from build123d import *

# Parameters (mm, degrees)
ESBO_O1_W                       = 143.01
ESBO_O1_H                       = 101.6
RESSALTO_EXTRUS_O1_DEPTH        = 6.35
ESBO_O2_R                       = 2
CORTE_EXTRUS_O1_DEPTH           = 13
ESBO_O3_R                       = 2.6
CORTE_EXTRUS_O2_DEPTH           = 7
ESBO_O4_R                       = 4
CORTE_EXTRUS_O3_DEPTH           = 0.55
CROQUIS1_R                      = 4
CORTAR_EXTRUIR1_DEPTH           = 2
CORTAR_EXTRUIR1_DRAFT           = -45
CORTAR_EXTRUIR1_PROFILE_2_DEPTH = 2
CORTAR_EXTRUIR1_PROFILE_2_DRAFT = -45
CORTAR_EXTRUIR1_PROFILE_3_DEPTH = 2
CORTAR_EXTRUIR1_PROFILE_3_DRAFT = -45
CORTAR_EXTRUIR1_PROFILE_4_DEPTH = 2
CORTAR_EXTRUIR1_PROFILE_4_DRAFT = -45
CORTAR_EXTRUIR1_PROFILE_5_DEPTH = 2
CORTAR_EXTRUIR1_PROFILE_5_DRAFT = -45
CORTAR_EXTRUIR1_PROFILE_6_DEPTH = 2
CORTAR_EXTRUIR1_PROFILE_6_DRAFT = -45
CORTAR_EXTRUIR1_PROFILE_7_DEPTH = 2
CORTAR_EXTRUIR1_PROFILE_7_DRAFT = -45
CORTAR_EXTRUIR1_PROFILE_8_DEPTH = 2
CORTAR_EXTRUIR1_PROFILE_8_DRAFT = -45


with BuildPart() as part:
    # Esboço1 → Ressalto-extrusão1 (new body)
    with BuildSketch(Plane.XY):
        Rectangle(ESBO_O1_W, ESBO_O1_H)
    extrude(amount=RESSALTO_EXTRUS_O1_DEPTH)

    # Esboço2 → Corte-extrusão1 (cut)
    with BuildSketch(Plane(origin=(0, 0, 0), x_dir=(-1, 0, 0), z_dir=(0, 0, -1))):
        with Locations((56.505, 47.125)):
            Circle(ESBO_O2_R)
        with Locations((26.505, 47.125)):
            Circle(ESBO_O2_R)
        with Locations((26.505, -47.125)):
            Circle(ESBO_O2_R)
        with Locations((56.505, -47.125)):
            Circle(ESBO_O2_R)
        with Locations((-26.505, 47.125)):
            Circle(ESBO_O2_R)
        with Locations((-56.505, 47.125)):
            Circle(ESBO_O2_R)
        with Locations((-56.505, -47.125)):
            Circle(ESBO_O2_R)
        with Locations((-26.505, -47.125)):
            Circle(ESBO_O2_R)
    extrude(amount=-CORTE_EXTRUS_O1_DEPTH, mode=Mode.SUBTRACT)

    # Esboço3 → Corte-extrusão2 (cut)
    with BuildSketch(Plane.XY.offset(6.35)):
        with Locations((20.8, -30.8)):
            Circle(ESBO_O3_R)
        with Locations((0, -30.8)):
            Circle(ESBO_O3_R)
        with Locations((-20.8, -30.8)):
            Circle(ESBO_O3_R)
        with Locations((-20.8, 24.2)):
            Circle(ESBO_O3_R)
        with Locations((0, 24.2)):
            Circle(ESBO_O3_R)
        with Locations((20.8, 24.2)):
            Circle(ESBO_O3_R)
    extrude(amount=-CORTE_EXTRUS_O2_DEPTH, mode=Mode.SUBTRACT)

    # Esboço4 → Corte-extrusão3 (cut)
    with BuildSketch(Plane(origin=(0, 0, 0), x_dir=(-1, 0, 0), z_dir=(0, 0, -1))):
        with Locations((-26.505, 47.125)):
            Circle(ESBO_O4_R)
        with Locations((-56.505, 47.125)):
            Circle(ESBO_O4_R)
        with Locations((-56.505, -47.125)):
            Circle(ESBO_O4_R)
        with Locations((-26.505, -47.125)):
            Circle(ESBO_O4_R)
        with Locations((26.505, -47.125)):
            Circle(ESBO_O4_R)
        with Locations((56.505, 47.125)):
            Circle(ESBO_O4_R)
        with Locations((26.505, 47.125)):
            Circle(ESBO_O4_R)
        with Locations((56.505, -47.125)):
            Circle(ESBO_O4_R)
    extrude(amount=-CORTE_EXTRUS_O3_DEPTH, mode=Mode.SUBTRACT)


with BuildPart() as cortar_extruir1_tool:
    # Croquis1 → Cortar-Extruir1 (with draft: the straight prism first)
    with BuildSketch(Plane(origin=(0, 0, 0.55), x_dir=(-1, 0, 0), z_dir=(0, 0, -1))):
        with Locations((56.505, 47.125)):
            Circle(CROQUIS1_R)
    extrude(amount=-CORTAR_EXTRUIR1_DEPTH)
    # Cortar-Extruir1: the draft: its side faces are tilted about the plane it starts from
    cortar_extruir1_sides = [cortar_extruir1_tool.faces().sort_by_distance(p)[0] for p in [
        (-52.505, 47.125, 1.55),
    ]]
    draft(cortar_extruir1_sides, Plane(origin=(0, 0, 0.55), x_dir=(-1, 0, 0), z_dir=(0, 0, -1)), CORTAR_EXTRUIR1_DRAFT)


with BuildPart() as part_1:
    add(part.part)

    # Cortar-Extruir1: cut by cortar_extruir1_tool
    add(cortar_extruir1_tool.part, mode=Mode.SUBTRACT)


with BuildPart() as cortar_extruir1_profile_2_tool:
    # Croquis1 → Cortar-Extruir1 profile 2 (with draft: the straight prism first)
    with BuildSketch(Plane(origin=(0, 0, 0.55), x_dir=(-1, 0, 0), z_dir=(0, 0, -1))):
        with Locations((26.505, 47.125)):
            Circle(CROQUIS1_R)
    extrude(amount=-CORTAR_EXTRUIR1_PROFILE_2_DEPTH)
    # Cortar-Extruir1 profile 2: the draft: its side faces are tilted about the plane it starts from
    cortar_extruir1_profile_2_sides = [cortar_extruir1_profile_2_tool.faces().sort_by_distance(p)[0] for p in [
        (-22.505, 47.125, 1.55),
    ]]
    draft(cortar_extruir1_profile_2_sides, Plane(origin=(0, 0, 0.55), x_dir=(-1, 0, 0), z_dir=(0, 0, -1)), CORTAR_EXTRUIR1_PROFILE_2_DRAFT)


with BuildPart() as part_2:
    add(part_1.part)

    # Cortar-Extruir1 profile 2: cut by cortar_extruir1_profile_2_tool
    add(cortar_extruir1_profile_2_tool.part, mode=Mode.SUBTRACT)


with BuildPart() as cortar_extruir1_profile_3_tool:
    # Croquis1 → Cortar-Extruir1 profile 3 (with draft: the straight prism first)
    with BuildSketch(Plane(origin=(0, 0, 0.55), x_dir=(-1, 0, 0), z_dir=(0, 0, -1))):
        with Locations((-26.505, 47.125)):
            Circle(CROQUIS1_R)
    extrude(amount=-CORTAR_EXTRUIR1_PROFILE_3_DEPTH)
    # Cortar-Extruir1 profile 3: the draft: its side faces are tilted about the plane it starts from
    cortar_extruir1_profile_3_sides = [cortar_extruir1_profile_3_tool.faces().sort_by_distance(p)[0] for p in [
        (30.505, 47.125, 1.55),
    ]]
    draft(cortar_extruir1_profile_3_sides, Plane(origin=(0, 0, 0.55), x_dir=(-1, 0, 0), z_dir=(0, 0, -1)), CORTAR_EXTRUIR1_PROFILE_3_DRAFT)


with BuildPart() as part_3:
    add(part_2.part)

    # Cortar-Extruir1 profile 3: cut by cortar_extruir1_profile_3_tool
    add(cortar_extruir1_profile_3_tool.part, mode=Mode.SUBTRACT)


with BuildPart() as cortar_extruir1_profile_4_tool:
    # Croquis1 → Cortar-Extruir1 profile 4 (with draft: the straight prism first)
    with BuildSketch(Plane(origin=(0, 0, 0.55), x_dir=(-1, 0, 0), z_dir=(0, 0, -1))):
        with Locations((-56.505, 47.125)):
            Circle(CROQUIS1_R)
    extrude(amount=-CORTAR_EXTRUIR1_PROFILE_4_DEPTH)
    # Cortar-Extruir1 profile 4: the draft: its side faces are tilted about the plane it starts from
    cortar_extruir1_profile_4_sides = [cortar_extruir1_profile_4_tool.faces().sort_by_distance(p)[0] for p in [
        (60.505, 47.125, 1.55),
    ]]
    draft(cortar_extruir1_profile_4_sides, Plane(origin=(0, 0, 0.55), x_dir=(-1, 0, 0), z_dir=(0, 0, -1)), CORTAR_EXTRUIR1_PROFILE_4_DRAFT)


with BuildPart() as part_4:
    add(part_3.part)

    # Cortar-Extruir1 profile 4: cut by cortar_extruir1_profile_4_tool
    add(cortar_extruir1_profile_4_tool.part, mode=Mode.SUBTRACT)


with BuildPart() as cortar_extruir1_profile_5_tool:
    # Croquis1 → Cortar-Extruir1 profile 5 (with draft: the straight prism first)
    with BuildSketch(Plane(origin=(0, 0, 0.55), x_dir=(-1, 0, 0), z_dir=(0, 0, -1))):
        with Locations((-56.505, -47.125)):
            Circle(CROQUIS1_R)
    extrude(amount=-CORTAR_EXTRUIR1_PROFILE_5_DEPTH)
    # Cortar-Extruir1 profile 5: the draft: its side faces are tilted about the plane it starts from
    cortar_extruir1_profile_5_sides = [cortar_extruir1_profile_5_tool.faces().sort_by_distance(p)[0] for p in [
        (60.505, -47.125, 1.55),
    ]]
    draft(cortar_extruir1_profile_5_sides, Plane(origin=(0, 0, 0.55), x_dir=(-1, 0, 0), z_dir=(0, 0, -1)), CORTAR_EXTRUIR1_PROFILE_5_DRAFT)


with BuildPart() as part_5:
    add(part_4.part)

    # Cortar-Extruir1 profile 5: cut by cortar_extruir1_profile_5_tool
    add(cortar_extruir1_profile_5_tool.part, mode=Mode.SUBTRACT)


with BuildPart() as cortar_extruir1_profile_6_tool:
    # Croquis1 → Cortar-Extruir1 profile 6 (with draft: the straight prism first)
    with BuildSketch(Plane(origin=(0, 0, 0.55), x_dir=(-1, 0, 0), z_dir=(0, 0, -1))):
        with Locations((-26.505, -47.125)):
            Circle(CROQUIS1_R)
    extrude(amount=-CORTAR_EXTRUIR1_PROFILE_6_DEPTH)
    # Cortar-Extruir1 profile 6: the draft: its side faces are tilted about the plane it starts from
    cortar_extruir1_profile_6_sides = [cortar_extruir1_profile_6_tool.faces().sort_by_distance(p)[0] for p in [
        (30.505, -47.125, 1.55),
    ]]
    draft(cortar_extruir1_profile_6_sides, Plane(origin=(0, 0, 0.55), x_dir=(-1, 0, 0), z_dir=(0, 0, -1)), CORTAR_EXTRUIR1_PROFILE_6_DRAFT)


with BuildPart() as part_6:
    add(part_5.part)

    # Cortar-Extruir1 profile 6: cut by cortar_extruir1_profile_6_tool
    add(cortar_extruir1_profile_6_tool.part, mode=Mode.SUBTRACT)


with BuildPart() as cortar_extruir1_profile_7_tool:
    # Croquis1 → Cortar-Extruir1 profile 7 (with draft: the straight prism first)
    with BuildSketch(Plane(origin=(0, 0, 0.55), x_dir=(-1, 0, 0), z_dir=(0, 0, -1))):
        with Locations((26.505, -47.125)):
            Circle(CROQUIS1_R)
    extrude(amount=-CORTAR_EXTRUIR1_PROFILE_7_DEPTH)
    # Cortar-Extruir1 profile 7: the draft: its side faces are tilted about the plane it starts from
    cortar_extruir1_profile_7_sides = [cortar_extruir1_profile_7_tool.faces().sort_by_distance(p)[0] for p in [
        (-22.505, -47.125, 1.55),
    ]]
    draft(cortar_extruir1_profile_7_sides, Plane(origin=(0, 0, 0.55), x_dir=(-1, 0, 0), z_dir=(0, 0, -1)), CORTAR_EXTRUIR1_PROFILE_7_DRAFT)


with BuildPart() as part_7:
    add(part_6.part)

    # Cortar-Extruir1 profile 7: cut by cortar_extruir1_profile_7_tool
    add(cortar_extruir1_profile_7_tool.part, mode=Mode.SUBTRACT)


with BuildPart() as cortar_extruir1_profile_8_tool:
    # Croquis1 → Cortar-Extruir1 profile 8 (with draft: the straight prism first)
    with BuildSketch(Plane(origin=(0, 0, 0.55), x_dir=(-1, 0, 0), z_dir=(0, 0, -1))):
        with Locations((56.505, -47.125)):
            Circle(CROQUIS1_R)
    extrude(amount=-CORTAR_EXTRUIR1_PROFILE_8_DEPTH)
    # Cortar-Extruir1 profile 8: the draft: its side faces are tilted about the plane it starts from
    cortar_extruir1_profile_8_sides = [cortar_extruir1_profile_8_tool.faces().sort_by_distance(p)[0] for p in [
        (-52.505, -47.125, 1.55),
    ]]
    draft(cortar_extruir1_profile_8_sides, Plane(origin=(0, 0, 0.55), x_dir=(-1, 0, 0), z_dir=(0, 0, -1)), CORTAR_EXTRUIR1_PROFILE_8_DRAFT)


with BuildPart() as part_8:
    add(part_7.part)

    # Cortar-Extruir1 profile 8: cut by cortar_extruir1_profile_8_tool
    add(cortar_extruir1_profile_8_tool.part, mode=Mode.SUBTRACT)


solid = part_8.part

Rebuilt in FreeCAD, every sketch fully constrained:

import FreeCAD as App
import Part
import Sketcher

V = App.Vector


def faces_at(feature, points):
    """Names of the faces that lie closest to the given points."""
    faces = feature.Shape.Faces
    near = lambda p: min(range(len(faces)), key=lambda i: faces[i].distToShape(Part.Vertex(*p))[0])
    return sorted({f"Face{near(p) + 1}" for p in points})


def add_polygon(sketch, points):
    """Adds a closed chain of lines whose ends are joined by coincident constraints."""
    first, n = sketch.GeometryCount, len(points)
    for a, b in zip(points, points[1:] + points[:1]):
        sketch.addGeometry(Part.LineSegment(App.Vector(*a, 0), App.Vector(*b, 0)), False)
    for i in range(n):
        sketch.addConstraint(Sketcher.Constraint("Coincident", first + i, 2, first + (i + 1) % n, 1))

doc = App.newDocument("Part")
body = doc.addObject("PartDesign::Body", "Body")

# Sketch on XY plane
sketch1 = body.newObject("Sketcher::SketchObject", "Sketch")
sketch1.AttachmentSupport = (doc.getObject("XY_Plane"), [""])
sketch1.MapMode = "FlatFace"
add_polygon(sketch1, [(-72, 51), (-72, -51), (72, -51), (72, 51)])  # lines 0-3
sketch1.addConstraint([
    Sketcher.Constraint("Vertical", 0),
    Sketcher.Constraint("Horizontal", 1),
    Sketcher.Constraint("Vertical", 2),
    Sketcher.Constraint("Horizontal", 3),
    Sketcher.Constraint("Symmetric", 0, 2, 2, 2, -1, 1),
    Sketcher.Constraint("DistanceY", 0, 2, 0, 1, 101.6),
    Sketcher.Constraint("DistanceX", 1, 1, 1, 2, 143.01),
])
pad1 = body.newObject("PartDesign::Pad", "Pad")
pad1.Profile = sketch1
pad1.Length = 6.35

# Sketch on XY plane
sketch2 = body.newObject("Sketcher::SketchObject", "Sketch001")
sketch2.AttachmentSupport = (doc.getObject("XY_Plane"), [""])
sketch2.MapMode = "FlatFace"
sketch2.addGeometry([
    Part.Circle(V(-56.5, 47.1, 0), V(0, 0, 1), 2),  # 0
    Part.Circle(V(-26.5, 47.1, 0), V(0, 0, 1), 2),  # 1
    Part.Circle(V(-26.5, -47.1, 0), V(0, 0, 1), 2),  # 2
    Part.Circle(V(-56.5, -47.1, 0), V(0, 0, 1), 2),  # 3
    Part.Circle(V(26.5, 47.1, 0), V(0, 0, 1), 2),  # 4
    Part.Circle(V(56.5, 47.1, 0), V(0, 0, 1), 2),  # 5
    Part.Circle(V(56.5, -47.1, 0), V(0, 0, 1), 2),  # 6
    Part.Circle(V(26.5, -47.1, 0), V(0, 0, 1), 2),  # 7
], False)
sketch2.addConstraint([
    Sketcher.Constraint("Equal", 0, 1),
    Sketcher.Constraint("Equal", 1, 2),
    Sketcher.Constraint("Equal", 2, 3),
    Sketcher.Constraint("Equal", 3, 4),
    Sketcher.Constraint("Equal", 4, 5),
    Sketcher.Constraint("Equal", 5, 6),
    Sketcher.Constraint("Equal", 6, 7),
    Sketcher.Constraint("Symmetric", 2, 3, 4, 3, -1, 1),
    Sketcher.Constraint("Symmetric", 3, 3, 5, 3, -1, 1),
    Sketcher.Constraint("Symmetric", 0, 3, 6, 3, -1, 1),
    Sketcher.Constraint("Symmetric", 1, 3, 7, 3, -1, 1),
    Sketcher.Constraint("Symmetric", 1, 3, 4, 3, -2),
    Sketcher.Constraint("Symmetric", 0, 3, 5, 3, -2),
    Sketcher.Constraint("Horizontal", 0, 3, 1, 3),
    Sketcher.Constraint("Diameter", 0, 4.0),
    Sketcher.Constraint("DistanceX", 0, 3, 1, 3, 30.0),
    Sketcher.Constraint("DistanceY", 2, 3, 1, 3, 94.25),
    Sketcher.Constraint("DistanceX", 1, 3, 4, 3, 53.01),
])
pocket1 = body.newObject("PartDesign::Pocket", "Pocket")
pocket1.Profile = sketch2
pocket1.Length = 13
pocket1.Reversed = True

# Sketch on XY plane
sketch3 = body.newObject("Sketcher::SketchObject", "Sketch002")
sketch3.AttachmentSupport = (doc.getObject("XY_Plane"), [""])
sketch3.MapMode = "FlatFace"
sketch3.AttachmentOffset = App.Placement(V(0, 0, 6.35), App.Rotation())
sketch3.addGeometry([
    Part.Circle(V(20.8, -30.8, 0), V(0, 0, 1), 2.6),  # 0
    Part.Circle(V(0, -30.8, 0), V(0, 0, 1), 2.6),  # 1
    Part.Circle(V(-20.8, -30.8, 0), V(0, 0, 1), 2.6),  # 2
    Part.Circle(V(-20.8, 24.2, 0), V(0, 0, 1), 2.6),  # 3
    Part.Circle(V(0, 24.2, 0), V(0, 0, 1), 2.6),  # 4
    Part.Circle(V(20.8, 24.2, 0), V(0, 0, 1), 2.6),  # 5
], False)
sketch3.addConstraint([
    Sketcher.Constraint("Equal", 0, 1),
    Sketcher.Constraint("Equal", 1, 2),
    Sketcher.Constraint("Equal", 2, 3),
    Sketcher.Constraint("Equal", 3, 4),
    Sketcher.Constraint("Equal", 4, 5),
    Sketcher.Constraint("Symmetric", 0, 3, 2, 3, -2),
    Sketcher.Constraint("Symmetric", 3, 3, 5, 3, -2),
    Sketcher.Constraint("PointOnObject", 1, 3, -2),
    Sketcher.Constraint("PointOnObject", 4, 3, -2),
    Sketcher.Constraint("Horizontal", 0, 3, 1, 3),
    Sketcher.Constraint("Horizontal", 3, 3, 4, 3),
    Sketcher.Constraint("Vertical", 2, 3, 3, 3),
    Sketcher.Constraint("Diameter", 0, 5.2),
    Sketcher.Constraint("DistanceY", 2, 3, 3, 3, 55.0),
    Sketcher.Constraint("DistanceX", -1, 1, 0, 3, 20.8),
    Sketcher.Constraint("DistanceY", 0, 3, -1, 1, 30.8),
])
pocket2 = body.newObject("PartDesign::Pocket", "Pocket001")
pocket2.Profile = sketch3
pocket2.Length = 7

# Sketch on XY plane
sketch4 = body.newObject("Sketcher::SketchObject", "Sketch003")
sketch4.AttachmentSupport = (doc.getObject("XY_Plane"), [""])
sketch4.MapMode = "FlatFace"
sketch4.addGeometry([
    Part.Circle(V(26.5, 47.1, 0), V(0, 0, 1), 4),  # 0
    Part.Circle(V(56.5, 47.1, 0), V(0, 0, 1), 4),  # 1
    Part.Circle(V(56.5, -47.1, 0), V(0, 0, 1), 4),  # 2
    Part.Circle(V(26.5, -47.1, 0), V(0, 0, 1), 4),  # 3
    Part.Circle(V(-26.5, -47.1, 0), V(0, 0, 1), 4),  # 4
    Part.Circle(V(-56.5, 47.1, 0), V(0, 0, 1), 4),  # 5
    Part.Circle(V(-26.5, 47.1, 0), V(0, 0, 1), 4),  # 6
    Part.Circle(V(-56.5, -47.1, 0), V(0, 0, 1), 4),  # 7
], False)
sketch4.addConstraint([
    Sketcher.Constraint("Equal", 0, 1),
    Sketcher.Constraint("Equal", 1, 2),
    Sketcher.Constraint("Equal", 2, 3),
    Sketcher.Constraint("Equal", 3, 4),
    Sketcher.Constraint("Equal", 4, 5),
    Sketcher.Constraint("Equal", 5, 6),
    Sketcher.Constraint("Equal", 6, 7),
    Sketcher.Constraint("Symmetric", 0, 3, 4, 3, -1, 1),
    Sketcher.Constraint("Symmetric", 2, 3, 5, 3, -1, 1),
    Sketcher.Constraint("Symmetric", 3, 3, 6, 3, -1, 1),
    Sketcher.Constraint("Symmetric", 1, 3, 7, 3, -1, 1),
    Sketcher.Constraint("Symmetric", 3, 3, 4, 3, -2),
    Sketcher.Constraint("Symmetric", 1, 3, 5, 3, -2),
    Sketcher.Constraint("Horizontal", 0, 3, 1, 3),
    Sketcher.Constraint("Diameter", 0, 8.0),
    Sketcher.Constraint("DistanceX", 0, 3, 1, 3, 30.0),
    Sketcher.Constraint("DistanceY", 2, 3, 1, 3, 94.25),
    Sketcher.Constraint("DistanceX", 4, 3, 3, 3, 53.01),
])
pocket3 = body.newObject("PartDesign::Pocket", "Pocket002")
pocket3.Profile = sketch4
pocket3.Length = 0.55
pocket3.Reversed = True
body2 = doc.addObject("PartDesign::Body", "Body001")

# Sketch on XY plane
sketch5 = body2.newObject("Sketcher::SketchObject", "Sketch004")
sketch5.AttachmentSupport = (doc.getObject("XY_Plane001"), [""])
sketch5.MapMode = "FlatFace"
sketch5.AttachmentOffset = App.Placement(V(0, 0, 0.55), App.Rotation())
sketch5.addGeometry(Part.Circle(V(-56.5, 47.1, 0), V(0, 0, 1), 4), False)
sketch5.addConstraint([
    Sketcher.Constraint("Diameter", 0, 8.0),
    Sketcher.Constraint("DistanceX", 0, 3, -1, 1, 56.505),
    Sketcher.Constraint("DistanceY", -1, 1, 0, 3, 47.125),
])
pad2 = body2.newObject("PartDesign::Pad", "Pad001")
pad2.Profile = sketch5
pad2.Length = 2
doc.recompute()

datumplane = body2.newObject("PartDesign::Plane", "DatumPlane")
datumplane.AttachmentSupport = (doc.getObject("XY_Plane001"), [""])
datumplane.MapMode = "FlatFace"
datumplane.AttachmentOffset = App.Placement(V(0, 0, 0.55), App.Rotation())
draft = body2.newObject("PartDesign::Draft", "Draft")
draft.Base = (pad2, faces_at(pad2, [(-52.505, 47.125, 1.55)]))
draft.NeutralPlane = (datumplane, [""])
draft.Angle = 45
draft.Reversed = False
doc.recompute()

boolean = body.newObject("PartDesign::Boolean", "Boolean")
boolean.Type = "Cut"
boolean.addObjects([body2])
body3 = doc.addObject("PartDesign::Body", "Body002")

# Sketch on XY plane
sketch6 = body3.newObject("Sketcher::SketchObject", "Sketch005")
sketch6.AttachmentSupport = (doc.getObject("XY_Plane002"), [""])
sketch6.MapMode = "FlatFace"
sketch6.AttachmentOffset = App.Placement(V(0, 0, 0.55), App.Rotation())
sketch6.addGeometry(Part.Circle(V(-26.5, 47.1, 0), V(0, 0, 1), 4), False)
sketch6.addConstraint([
    Sketcher.Constraint("Diameter", 0, 8.0),
    Sketcher.Constraint("DistanceX", 0, 3, -1, 1, 26.505),
    Sketcher.Constraint("DistanceY", -1, 1, 0, 3, 47.125),
])
pad3 = body3.newObject("PartDesign::Pad", "Pad002")
pad3.Profile = sketch6
pad3.Length = 2
doc.recompute()

datumplane2 = body3.newObject("PartDesign::Plane", "DatumPlane001")
datumplane2.AttachmentSupport = (doc.getObject("XY_Plane002"), [""])
datumplane2.MapMode = "FlatFace"
datumplane2.AttachmentOffset = App.Placement(V(0, 0, 0.55), App.Rotation())
draft2 = body3.newObject("PartDesign::Draft", "Draft001")
draft2.Base = (pad3, faces_at(pad3, [(-22.505, 47.125, 1.55)]))
draft2.NeutralPlane = (datumplane2, [""])
draft2.Angle = 45
draft2.Reversed = False
doc.recompute()

boolean2 = body.newObject("PartDesign::Boolean", "Boolean001")
boolean2.Type = "Cut"
boolean2.addObjects([body3])
body4 = doc.addObject("PartDesign::Body", "Body003")

# Sketch on XY plane
sketch7 = body4.newObject("Sketcher::SketchObject", "Sketch006")
sketch7.AttachmentSupport = (doc.getObject("XY_Plane003"), [""])
sketch7.MapMode = "FlatFace"
sketch7.AttachmentOffset = App.Placement(V(0, 0, 0.55), App.Rotation())
sketch7.addGeometry(Part.Circle(V(26.5, 47.1, 0), V(0, 0, 1), 4), False)
sketch7.addConstraint([
    Sketcher.Constraint("Diameter", 0, 8.0),
    Sketcher.Constraint("DistanceX", -1, 1, 0, 3, 26.505),
    Sketcher.Constraint("DistanceY", -1, 1, 0, 3, 47.125),
])
pad4 = body4.newObject("PartDesign::Pad", "Pad003")
pad4.Profile = sketch7
pad4.Length = 2
doc.recompute()

datumplane3 = body4.newObject("PartDesign::Plane", "DatumPlane002")
datumplane3.AttachmentSupport = (doc.getObject("XY_Plane003"), [""])
datumplane3.MapMode = "FlatFace"
datumplane3.AttachmentOffset = App.Placement(V(0, 0, 0.55), App.Rotation())
draft3 = body4.newObject("PartDesign::Draft", "Draft002")
draft3.Base = (pad4, faces_at(pad4, [(30.505, 47.125, 1.55)]))
draft3.NeutralPlane = (datumplane3, [""])
draft3.Angle = 45
draft3.Reversed = False
doc.recompute()

boolean3 = body.newObject("PartDesign::Boolean", "Boolean002")
boolean3.Type = "Cut"
boolean3.addObjects([body4])
body5 = doc.addObject("PartDesign::Body", "Body004")

# Sketch on XY plane
sketch8 = body5.newObject("Sketcher::SketchObject", "Sketch007")
sketch8.AttachmentSupport = (doc.getObject("XY_Plane004"), [""])
sketch8.MapMode = "FlatFace"
sketch8.AttachmentOffset = App.Placement(V(0, 0, 0.55), App.Rotation())
sketch8.addGeometry(Part.Circle(V(56.5, 47.1, 0), V(0, 0, 1), 4), False)
sketch8.addConstraint([
    Sketcher.Constraint("Diameter", 0, 8.0),
    Sketcher.Constraint("DistanceX", -1, 1, 0, 3, 56.505),
    Sketcher.Constraint("DistanceY", -1, 1, 0, 3, 47.125),
])
pad5 = body5.newObject("PartDesign::Pad", "Pad004")
pad5.Profile = sketch8
pad5.Length = 2
doc.recompute()

datumplane4 = body5.newObject("PartDesign::Plane", "DatumPlane003")
datumplane4.AttachmentSupport = (doc.getObject("XY_Plane004"), [""])
datumplane4.MapMode = "FlatFace"
datumplane4.AttachmentOffset = App.Placement(V(0, 0, 0.55), App.Rotation())
draft4 = body5.newObject("PartDesign::Draft", "Draft003")
draft4.Base = (pad5, faces_at(pad5, [(60.505, 47.125, 1.55)]))
draft4.NeutralPlane = (datumplane4, [""])
draft4.Angle = 45
draft4.Reversed = False
doc.recompute()

boolean4 = body.newObject("PartDesign::Boolean", "Boolean003")
boolean4.Type = "Cut"
boolean4.addObjects([body5])
body6 = doc.addObject("PartDesign::Body", "Body005")

# Sketch on XY plane
sketch9 = body6.newObject("Sketcher::SketchObject", "Sketch008")
sketch9.AttachmentSupport = (doc.getObject("XY_Plane005"), [""])
sketch9.MapMode = "FlatFace"
sketch9.AttachmentOffset = App.Placement(V(0, 0, 0.55), App.Rotation())
sketch9.addGeometry(Part.Circle(V(56.5, -47.1, 0), V(0, 0, 1), 4), False)
sketch9.addConstraint([
    Sketcher.Constraint("Diameter", 0, 8.0),
    Sketcher.Constraint("DistanceX", -1, 1, 0, 3, 56.505),
    Sketcher.Constraint("DistanceY", 0, 3, -1, 1, 47.125),
])
pad6 = body6.newObject("PartDesign::Pad", "Pad005")
pad6.Profile = sketch9
pad6.Length = 2
doc.recompute()

datumplane5 = body6.newObject("PartDesign::Plane", "DatumPlane004")
datumplane5.AttachmentSupport = (doc.getObject("XY_Plane005"), [""])
datumplane5.MapMode = "FlatFace"
datumplane5.AttachmentOffset = App.Placement(V(0, 0, 0.55), App.Rotation())
draft5 = body6.newObject("PartDesign::Draft", "Draft004")
draft5.Base = (pad6, faces_at(pad6, [(60.505, -47.125, 1.55)]))
draft5.NeutralPlane = (datumplane5, [""])
draft5.Angle = 45
draft5.Reversed = False
doc.recompute()

boolean5 = body.newObject("PartDesign::Boolean", "Boolean004")
boolean5.Type = "Cut"
boolean5.addObjects([body6])
body7 = doc.addObject("PartDesign::Body", "Body006")

# Sketch on XY plane
sketch10 = body7.newObject("Sketcher::SketchObject", "Sketch009")
sketch10.AttachmentSupport = (doc.getObject("XY_Plane006"), [""])
sketch10.MapMode = "FlatFace"
sketch10.AttachmentOffset = App.Placement(V(0, 0, 0.55), App.Rotation())
sketch10.addGeometry(Part.Circle(V(26.5, -47.1, 0), V(0, 0, 1), 4), False)
sketch10.addConstraint([
    Sketcher.Constraint("Diameter", 0, 8.0),
    Sketcher.Constraint("DistanceX", -1, 1, 0, 3, 26.505),
    Sketcher.Constraint("DistanceY", 0, 3, -1, 1, 47.125),
])
pad7 = body7.newObject("PartDesign::Pad", "Pad006")
pad7.Profile = sketch10
pad7.Length = 2
doc.recompute()

datumplane6 = body7.newObject("PartDesign::Plane", "DatumPlane005")
datumplane6.AttachmentSupport = (doc.getObject("XY_Plane006"), [""])
datumplane6.MapMode = "FlatFace"
datumplane6.AttachmentOffset = App.Placement(V(0, 0, 0.55), App.Rotation())
draft6 = body7.newObject("PartDesign::Draft", "Draft005")
draft6.Base = (pad7, faces_at(pad7, [(30.505, -47.125, 1.55)]))
draft6.NeutralPlane = (datumplane6, [""])
draft6.Angle = 45
draft6.Reversed = False
doc.recompute()

boolean6 = body.newObject("PartDesign::Boolean", "Boolean005")
boolean6.Type = "Cut"
boolean6.addObjects([body7])
body8 = doc.addObject("PartDesign::Body", "Body007")

# Sketch on XY plane
sketch11 = body8.newObject("Sketcher::SketchObject", "Sketch010")
sketch11.AttachmentSupport = (doc.getObject("XY_Plane007"), [""])
sketch11.MapMode = "FlatFace"
sketch11.AttachmentOffset = App.Placement(V(0, 0, 0.55), App.Rotation())
sketch11.addGeometry(Part.Circle(V(-26.5, -47.1, 0), V(0, 0, 1), 4), False)
sketch11.addConstraint([
    Sketcher.Constraint("Diameter", 0, 8.0),
    Sketcher.Constraint("DistanceX", 0, 3, -1, 1, 26.505),
    Sketcher.Constraint("DistanceY", 0, 3, -1, 1, 47.125),
])
pad8 = body8.newObject("PartDesign::Pad", "Pad007")
pad8.Profile = sketch11
pad8.Length = 2
doc.recompute()

datumplane7 = body8.newObject("PartDesign::Plane", "DatumPlane006")
datumplane7.AttachmentSupport = (doc.getObject("XY_Plane007"), [""])
datumplane7.MapMode = "FlatFace"
datumplane7.AttachmentOffset = App.Placement(V(0, 0, 0.55), App.Rotation())
draft7 = body8.newObject("PartDesign::Draft", "Draft006")
draft7.Base = (pad8, faces_at(pad8, [(-22.505, -47.125, 1.55)]))
draft7.NeutralPlane = (datumplane7, [""])
draft7.Angle = 45
draft7.Reversed = False
doc.recompute()

boolean7 = body.newObject("PartDesign::Boolean", "Boolean006")
boolean7.Type = "Cut"
boolean7.addObjects([body8])
body9 = doc.addObject("PartDesign::Body", "Body008")

# Sketch on XY plane
sketch12 = body9.newObject("Sketcher::SketchObject", "Sketch011")
sketch12.AttachmentSupport = (doc.getObject("XY_Plane008"), [""])
sketch12.MapMode = "FlatFace"
sketch12.AttachmentOffset = App.Placement(V(0, 0, 0.55), App.Rotation())
sketch12.addGeometry(Part.Circle(V(-56.5, -47.1, 0), V(0, 0, 1), 4), False)
sketch12.addConstraint([
    Sketcher.Constraint("Diameter", 0, 8.0),
    Sketcher.Constraint("DistanceX", 0, 3, -1, 1, 56.505),
    Sketcher.Constraint("DistanceY", 0, 3, -1, 1, 47.125),
])
pad9 = body9.newObject("PartDesign::Pad", "Pad008")
pad9.Profile = sketch12
pad9.Length = 2
doc.recompute()

datumplane8 = body9.newObject("PartDesign::Plane", "DatumPlane007")
datumplane8.AttachmentSupport = (doc.getObject("XY_Plane008"), [""])
datumplane8.MapMode = "FlatFace"
datumplane8.AttachmentOffset = App.Placement(V(0, 0, 0.55), App.Rotation())
draft8 = body9.newObject("PartDesign::Draft", "Draft007")
draft8.Base = (pad9, faces_at(pad9, [(-52.505, -47.125, 1.55)]))
draft8.NeutralPlane = (datumplane8, [""])
draft8.Angle = 45
draft8.Reversed = False
doc.recompute()

boolean8 = body.newObject("PartDesign::Boolean", "Boolean007")
boolean8.Type = "Cut"
boolean8.addObjects([body9])

doc.recompute()
